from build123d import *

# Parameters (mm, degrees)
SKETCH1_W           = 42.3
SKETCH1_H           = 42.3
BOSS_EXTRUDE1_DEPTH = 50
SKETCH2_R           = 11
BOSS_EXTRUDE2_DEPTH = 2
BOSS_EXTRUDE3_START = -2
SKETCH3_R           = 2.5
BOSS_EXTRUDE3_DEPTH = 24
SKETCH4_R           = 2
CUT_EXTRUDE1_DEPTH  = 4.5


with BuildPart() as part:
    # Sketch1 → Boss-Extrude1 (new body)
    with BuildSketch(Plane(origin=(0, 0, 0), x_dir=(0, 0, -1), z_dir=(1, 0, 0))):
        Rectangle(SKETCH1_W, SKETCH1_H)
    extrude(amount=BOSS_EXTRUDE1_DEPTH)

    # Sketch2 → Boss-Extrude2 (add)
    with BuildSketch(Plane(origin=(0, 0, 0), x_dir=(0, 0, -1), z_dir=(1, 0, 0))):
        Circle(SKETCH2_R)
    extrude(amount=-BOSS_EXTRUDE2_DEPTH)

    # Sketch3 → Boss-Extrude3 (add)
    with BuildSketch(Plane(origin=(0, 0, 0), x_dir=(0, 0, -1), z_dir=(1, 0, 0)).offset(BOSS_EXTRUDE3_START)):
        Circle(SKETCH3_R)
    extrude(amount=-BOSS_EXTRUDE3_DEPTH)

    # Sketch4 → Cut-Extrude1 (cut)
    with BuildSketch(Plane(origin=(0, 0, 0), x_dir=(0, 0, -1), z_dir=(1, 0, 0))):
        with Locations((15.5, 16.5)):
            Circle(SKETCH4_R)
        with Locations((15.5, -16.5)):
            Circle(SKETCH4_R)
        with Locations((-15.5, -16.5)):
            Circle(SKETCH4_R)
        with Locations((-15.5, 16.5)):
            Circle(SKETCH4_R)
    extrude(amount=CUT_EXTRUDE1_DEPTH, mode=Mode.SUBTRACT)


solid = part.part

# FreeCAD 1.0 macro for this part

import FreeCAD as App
import Part
import Sketcher

doc = App.newDocument("Part")
params = doc.addObject("Spreadsheet::Sheet", "Params")
for row, (alias, value) in enumerate([
    ("sketch1_width", "42.3 mm"),
    ("pad1_length", "50 mm"),
    ("sketch2_diameter", "22 mm"),
    ("pad2_length", "2 mm"),
    ("sketch3_diameter", "5 mm"),
    ("pad3_length", "24 mm"),
    ("sketch4_diameter", "4 mm"),
    ("pocket1_length", "4.5 mm"),
], start=1):
    params.set(f"A{row}", alias)
    params.set(f"B{row}", "=" + value)
    params.setAlias(f"B{row}", alias)

body = doc.addObject("PartDesign::Body", "Body")

sketch1 = body.newObject("Sketcher::SketchObject", "Sketch")
sketch1.AttachmentSupport = (doc.getObject("YZ_Plane"), [""])
sketch1.MapMode = "FlatFace"
sketch1.addGeometry(Part.LineSegment(App.Vector(21.15, 21.15, 0), App.Vector(-21.15, 21.15, 0)), False)
sketch1.addGeometry(Part.LineSegment(App.Vector(-21.15, 21.15, 0), App.Vector(-21.15, -21.15, 0)), False)
sketch1.addGeometry(Part.LineSegment(App.Vector(-21.15, -21.15, 0), App.Vector(21.15, -21.15, 0)), False)
sketch1.addGeometry(Part.LineSegment(App.Vector(21.15, -21.15, 0), App.Vector(21.15, 21.15, 0)), False)
sketch1.addConstraint(Sketcher.Constraint("Coincident", 0, 2, 1, 1))
sketch1.addConstraint(Sketcher.Constraint("Coincident", 1, 2, 2, 1))
sketch1.addConstraint(Sketcher.Constraint("Coincident", 2, 2, 3, 1))
sketch1.addConstraint(Sketcher.Constraint("Coincident", 3, 2, 0, 1))
sketch1.addConstraint(Sketcher.Constraint("Horizontal", 0))
sketch1.addConstraint(Sketcher.Constraint("Vertical", 1))
sketch1.addConstraint(Sketcher.Constraint("Horizontal", 2))
sketch1.addConstraint(Sketcher.Constraint("Vertical", 3))
sketch1.addConstraint(Sketcher.Constraint("Symmetric", 0, 2, 2, 2, -1, 1))
sketch1.addConstraint(Sketcher.Constraint("Equal", 2, 1))
sketch1.addConstraint(Sketcher.Constraint("DistanceX", 0, 2, 0, 1, 42.3))
sketch1.setExpression("Constraints[10]", "Params.sketch1_width")
pad1 = body.newObject("PartDesign::Pad", "Pad")
pad1.Profile = sketch1
pad1.setExpression("Length", "Params.pad1_length")

sketch2 = body.newObject("Sketcher::SketchObject", "Sketch001")
sketch2.AttachmentSupport = (doc.getObject("YZ_Plane"), [""])
sketch2.MapMode = "FlatFace"
sketch2.addGeometry(Part.Circle(App.Vector(0, 0, 0), App.Vector(0, 0, 1), 11), False)
sketch2.addConstraint(Sketcher.Constraint("Coincident", 0, 3, -1, 1))
sketch2.addConstraint(Sketcher.Constraint("Diameter", 0, 22.0))
sketch2.setExpression("Constraints[1]", "Params.sketch2_diameter")
pad2 = body.newObject("PartDesign::Pad", "Pad001")
pad2.Profile = sketch2
pad2.setExpression("Length", "Params.pad2_length")
pad2.Reversed = True

sketch3 = body.newObject("Sketcher::SketchObject", "Sketch002")
sketch3.AttachmentSupport = (doc.getObject("YZ_Plane"), [""])
sketch3.MapMode = "FlatFace"
sketch3.AttachmentOffset = App.Placement(App.Vector(0, 0, -2), App.Rotation())
sketch3.addGeometry(Part.Circle(App.Vector(0, 0, 0), App.Vector(0, 0, 1), 2.5), False)
sketch3.addConstraint(Sketcher.Constraint("Coincident", 0, 3, -1, 1))
sketch3.addConstraint(Sketcher.Constraint("Diameter", 0, 5.0))
sketch3.setExpression("Constraints[1]", "Params.sketch3_diameter")
pad3 = body.newObject("PartDesign::Pad", "Pad002")
pad3.Profile = sketch3
pad3.setExpression("Length", "Params.pad3_length")
pad3.Reversed = True

sketch4 = body.newObject("Sketcher::SketchObject", "Sketch003")
sketch4.AttachmentSupport = (doc.getObject("YZ_Plane"), [""])
sketch4.MapMode = "FlatFace"
sketch4.addGeometry(Part.Circle(App.Vector(16.5, -15.5, 0), App.Vector(0, 0, 1), 2), False)
sketch4.addGeometry(Part.Circle(App.Vector(-16.5, -15.5, 0), App.Vector(0, 0, 1), 2), False)
sketch4.addGeometry(Part.Circle(App.Vector(-16.5, 15.5, 0), App.Vector(0, 0, 1), 2), False)
sketch4.addGeometry(Part.Circle(App.Vector(16.5, 15.5, 0), App.Vector(0, 0, 1), 2), False)
sketch4.addConstraint(Sketcher.Constraint("Equal", 0, 1))
sketch4.addConstraint(Sketcher.Constraint("Equal", 1, 2))
sketch4.addConstraint(Sketcher.Constraint("Equal", 2, 3))
sketch4.addConstraint(Sketcher.Constraint("Symmetric", 0, 3, 2, 3, -1, 1))
sketch4.addConstraint(Sketcher.Constraint("Symmetric", 1, 3, 3, 3, -1, 1))
sketch4.addConstraint(Sketcher.Constraint("Symmetric", 0, 3, 1, 3, -2))
sketch4.addConstraint(Sketcher.Constraint("Diameter", 0, 4.0))
sketch4.addConstraint(Sketcher.Constraint("DistanceX", 1, 3, 0, 3, 33.0))
sketch4.addConstraint(Sketcher.Constraint("DistanceY", 1, 3, 2, 3, 31.0))
sketch4.setExpression("Constraints[6]", "Params.sketch4_diameter")
pocket1 = body.newObject("PartDesign::Pocket", "Pocket")
pocket1.Profile = sketch4
pocket1.setExpression("Length", "Params.pocket1_length")
pocket1.Reversed = True

doc.recompute()
